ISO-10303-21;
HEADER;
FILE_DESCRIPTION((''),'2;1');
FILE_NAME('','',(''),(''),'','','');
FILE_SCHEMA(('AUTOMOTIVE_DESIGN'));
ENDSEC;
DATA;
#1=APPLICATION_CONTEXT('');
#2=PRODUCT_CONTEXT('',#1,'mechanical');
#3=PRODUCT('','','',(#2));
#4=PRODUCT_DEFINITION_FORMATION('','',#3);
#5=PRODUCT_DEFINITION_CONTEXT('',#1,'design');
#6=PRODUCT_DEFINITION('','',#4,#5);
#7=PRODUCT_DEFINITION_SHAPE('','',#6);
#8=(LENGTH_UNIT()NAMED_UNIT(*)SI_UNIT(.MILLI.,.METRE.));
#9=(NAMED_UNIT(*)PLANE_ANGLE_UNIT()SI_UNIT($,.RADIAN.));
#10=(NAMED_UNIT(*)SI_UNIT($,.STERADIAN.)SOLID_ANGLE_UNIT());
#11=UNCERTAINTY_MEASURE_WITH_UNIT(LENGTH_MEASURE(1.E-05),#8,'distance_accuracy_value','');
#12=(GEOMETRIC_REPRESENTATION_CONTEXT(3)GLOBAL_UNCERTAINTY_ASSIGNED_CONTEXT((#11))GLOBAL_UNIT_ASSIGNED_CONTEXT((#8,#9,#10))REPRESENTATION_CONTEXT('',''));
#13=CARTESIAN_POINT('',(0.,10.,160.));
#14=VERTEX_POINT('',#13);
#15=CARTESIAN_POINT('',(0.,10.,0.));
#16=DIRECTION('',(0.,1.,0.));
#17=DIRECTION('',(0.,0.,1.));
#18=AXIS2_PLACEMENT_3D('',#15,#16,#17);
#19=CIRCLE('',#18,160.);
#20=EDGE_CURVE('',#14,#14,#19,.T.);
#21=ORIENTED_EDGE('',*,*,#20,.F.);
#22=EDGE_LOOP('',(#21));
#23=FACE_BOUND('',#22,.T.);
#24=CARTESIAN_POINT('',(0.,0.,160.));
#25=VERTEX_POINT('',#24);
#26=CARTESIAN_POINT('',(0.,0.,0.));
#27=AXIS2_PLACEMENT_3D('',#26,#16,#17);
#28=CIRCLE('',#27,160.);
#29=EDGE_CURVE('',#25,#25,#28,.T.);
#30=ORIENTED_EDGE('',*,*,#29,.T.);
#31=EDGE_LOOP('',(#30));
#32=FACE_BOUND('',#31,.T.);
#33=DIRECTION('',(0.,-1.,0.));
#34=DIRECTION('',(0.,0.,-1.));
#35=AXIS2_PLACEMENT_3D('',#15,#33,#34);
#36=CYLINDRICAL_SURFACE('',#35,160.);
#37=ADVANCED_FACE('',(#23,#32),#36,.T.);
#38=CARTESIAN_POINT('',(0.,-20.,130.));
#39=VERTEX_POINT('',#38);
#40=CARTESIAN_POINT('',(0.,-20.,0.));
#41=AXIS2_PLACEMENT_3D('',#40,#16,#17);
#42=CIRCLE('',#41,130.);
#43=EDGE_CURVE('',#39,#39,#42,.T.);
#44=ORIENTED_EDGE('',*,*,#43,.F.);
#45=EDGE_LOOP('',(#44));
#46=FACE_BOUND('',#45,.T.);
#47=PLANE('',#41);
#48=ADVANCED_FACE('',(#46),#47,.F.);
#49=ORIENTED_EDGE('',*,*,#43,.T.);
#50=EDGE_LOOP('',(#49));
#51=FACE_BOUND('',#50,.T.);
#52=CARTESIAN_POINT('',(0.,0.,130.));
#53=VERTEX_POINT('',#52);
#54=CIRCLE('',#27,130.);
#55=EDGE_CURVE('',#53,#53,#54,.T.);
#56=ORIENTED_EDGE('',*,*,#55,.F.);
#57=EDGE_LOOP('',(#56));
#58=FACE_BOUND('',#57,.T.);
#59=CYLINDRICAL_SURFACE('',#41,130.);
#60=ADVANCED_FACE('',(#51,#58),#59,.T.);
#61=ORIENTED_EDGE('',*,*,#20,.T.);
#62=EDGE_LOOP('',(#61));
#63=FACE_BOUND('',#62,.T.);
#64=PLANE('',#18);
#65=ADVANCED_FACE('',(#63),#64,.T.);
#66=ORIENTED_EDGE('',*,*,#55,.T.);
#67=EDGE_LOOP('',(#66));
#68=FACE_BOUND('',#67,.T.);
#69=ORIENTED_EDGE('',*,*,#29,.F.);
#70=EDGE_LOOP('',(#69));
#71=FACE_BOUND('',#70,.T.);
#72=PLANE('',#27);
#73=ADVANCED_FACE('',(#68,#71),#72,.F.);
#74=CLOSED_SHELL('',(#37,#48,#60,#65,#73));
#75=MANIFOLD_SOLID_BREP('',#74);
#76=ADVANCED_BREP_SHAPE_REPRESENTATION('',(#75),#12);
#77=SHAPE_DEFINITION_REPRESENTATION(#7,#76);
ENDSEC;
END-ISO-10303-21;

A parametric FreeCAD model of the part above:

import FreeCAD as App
import Part
import Sketcher
from FreeCAD import Vector
Q = App.Units.Quantity

doc = App.newDocument("Part")
params = doc.addObject("Spreadsheet::Sheet", "Params")
for row, (alias, value) in enumerate([
    ("sketch1_diameter", "260 mm"),
    ("pad1_length", "20 mm"),
    ("sketch2_diameter", "320 mm"),
    ("pad2_length", "10 mm"),
], start=1):
    params.set(f"A{row}", alias)
    params.set(f"B{row}", "=" + value)
    params.setAlias(f"B{row}", alias)

body = doc.addObject("PartDesign::Body", "Body")

# Sketch on XZ plane
sketch1 = body.newObject("Sketcher::SketchObject", "Sketch")
sketch1.AttachmentSupport = (doc.getObject("XZ_Plane"), [""])
sketch1.MapMode = "FlatFace"
sketch1.addGeometry(Part.Circle(Vector(0, 0, 0), Vector(0, 0, 1), 130), False)
sketch1.addConstraint([
    Sketcher.Constraint("Coincident", 0, 3, -1, 1),
    Sketcher.Constraint("Diameter", 0, Q("260 mm")),
])
sketch1.setExpression("Constraints[1]", "Params.sketch1_diameter")
pad1 = body.newObject("PartDesign::Pad", "Pad")
pad1.Profile = sketch1
pad1.setExpression("Length", "Params.pad1_length")

# Sketch on XZ plane
sketch2 = body.newObject("Sketcher::SketchObject", "Sketch001")
sketch2.AttachmentSupport = (doc.getObject("XZ_Plane"), [""])
sketch2.MapMode = "FlatFace"
sketch2.addGeometry(Part.Circle(Vector(0, 0, 0), Vector(0, 0, 1), 160), False)
sketch2.addConstraint([
    Sketcher.Constraint("Coincident", 0, 3, -1, 1),
    Sketcher.Constraint("Diameter", 0, Q("320 mm")),
])
sketch2.setExpression("Constraints[1]", "Params.sketch2_diameter")
pad2 = body.newObject("PartDesign::Pad", "Pad001")
pad2.Profile = sketch2
pad2.setExpression("Length", "Params.pad2_length")
pad2.Reversed = True

doc.recompute()
